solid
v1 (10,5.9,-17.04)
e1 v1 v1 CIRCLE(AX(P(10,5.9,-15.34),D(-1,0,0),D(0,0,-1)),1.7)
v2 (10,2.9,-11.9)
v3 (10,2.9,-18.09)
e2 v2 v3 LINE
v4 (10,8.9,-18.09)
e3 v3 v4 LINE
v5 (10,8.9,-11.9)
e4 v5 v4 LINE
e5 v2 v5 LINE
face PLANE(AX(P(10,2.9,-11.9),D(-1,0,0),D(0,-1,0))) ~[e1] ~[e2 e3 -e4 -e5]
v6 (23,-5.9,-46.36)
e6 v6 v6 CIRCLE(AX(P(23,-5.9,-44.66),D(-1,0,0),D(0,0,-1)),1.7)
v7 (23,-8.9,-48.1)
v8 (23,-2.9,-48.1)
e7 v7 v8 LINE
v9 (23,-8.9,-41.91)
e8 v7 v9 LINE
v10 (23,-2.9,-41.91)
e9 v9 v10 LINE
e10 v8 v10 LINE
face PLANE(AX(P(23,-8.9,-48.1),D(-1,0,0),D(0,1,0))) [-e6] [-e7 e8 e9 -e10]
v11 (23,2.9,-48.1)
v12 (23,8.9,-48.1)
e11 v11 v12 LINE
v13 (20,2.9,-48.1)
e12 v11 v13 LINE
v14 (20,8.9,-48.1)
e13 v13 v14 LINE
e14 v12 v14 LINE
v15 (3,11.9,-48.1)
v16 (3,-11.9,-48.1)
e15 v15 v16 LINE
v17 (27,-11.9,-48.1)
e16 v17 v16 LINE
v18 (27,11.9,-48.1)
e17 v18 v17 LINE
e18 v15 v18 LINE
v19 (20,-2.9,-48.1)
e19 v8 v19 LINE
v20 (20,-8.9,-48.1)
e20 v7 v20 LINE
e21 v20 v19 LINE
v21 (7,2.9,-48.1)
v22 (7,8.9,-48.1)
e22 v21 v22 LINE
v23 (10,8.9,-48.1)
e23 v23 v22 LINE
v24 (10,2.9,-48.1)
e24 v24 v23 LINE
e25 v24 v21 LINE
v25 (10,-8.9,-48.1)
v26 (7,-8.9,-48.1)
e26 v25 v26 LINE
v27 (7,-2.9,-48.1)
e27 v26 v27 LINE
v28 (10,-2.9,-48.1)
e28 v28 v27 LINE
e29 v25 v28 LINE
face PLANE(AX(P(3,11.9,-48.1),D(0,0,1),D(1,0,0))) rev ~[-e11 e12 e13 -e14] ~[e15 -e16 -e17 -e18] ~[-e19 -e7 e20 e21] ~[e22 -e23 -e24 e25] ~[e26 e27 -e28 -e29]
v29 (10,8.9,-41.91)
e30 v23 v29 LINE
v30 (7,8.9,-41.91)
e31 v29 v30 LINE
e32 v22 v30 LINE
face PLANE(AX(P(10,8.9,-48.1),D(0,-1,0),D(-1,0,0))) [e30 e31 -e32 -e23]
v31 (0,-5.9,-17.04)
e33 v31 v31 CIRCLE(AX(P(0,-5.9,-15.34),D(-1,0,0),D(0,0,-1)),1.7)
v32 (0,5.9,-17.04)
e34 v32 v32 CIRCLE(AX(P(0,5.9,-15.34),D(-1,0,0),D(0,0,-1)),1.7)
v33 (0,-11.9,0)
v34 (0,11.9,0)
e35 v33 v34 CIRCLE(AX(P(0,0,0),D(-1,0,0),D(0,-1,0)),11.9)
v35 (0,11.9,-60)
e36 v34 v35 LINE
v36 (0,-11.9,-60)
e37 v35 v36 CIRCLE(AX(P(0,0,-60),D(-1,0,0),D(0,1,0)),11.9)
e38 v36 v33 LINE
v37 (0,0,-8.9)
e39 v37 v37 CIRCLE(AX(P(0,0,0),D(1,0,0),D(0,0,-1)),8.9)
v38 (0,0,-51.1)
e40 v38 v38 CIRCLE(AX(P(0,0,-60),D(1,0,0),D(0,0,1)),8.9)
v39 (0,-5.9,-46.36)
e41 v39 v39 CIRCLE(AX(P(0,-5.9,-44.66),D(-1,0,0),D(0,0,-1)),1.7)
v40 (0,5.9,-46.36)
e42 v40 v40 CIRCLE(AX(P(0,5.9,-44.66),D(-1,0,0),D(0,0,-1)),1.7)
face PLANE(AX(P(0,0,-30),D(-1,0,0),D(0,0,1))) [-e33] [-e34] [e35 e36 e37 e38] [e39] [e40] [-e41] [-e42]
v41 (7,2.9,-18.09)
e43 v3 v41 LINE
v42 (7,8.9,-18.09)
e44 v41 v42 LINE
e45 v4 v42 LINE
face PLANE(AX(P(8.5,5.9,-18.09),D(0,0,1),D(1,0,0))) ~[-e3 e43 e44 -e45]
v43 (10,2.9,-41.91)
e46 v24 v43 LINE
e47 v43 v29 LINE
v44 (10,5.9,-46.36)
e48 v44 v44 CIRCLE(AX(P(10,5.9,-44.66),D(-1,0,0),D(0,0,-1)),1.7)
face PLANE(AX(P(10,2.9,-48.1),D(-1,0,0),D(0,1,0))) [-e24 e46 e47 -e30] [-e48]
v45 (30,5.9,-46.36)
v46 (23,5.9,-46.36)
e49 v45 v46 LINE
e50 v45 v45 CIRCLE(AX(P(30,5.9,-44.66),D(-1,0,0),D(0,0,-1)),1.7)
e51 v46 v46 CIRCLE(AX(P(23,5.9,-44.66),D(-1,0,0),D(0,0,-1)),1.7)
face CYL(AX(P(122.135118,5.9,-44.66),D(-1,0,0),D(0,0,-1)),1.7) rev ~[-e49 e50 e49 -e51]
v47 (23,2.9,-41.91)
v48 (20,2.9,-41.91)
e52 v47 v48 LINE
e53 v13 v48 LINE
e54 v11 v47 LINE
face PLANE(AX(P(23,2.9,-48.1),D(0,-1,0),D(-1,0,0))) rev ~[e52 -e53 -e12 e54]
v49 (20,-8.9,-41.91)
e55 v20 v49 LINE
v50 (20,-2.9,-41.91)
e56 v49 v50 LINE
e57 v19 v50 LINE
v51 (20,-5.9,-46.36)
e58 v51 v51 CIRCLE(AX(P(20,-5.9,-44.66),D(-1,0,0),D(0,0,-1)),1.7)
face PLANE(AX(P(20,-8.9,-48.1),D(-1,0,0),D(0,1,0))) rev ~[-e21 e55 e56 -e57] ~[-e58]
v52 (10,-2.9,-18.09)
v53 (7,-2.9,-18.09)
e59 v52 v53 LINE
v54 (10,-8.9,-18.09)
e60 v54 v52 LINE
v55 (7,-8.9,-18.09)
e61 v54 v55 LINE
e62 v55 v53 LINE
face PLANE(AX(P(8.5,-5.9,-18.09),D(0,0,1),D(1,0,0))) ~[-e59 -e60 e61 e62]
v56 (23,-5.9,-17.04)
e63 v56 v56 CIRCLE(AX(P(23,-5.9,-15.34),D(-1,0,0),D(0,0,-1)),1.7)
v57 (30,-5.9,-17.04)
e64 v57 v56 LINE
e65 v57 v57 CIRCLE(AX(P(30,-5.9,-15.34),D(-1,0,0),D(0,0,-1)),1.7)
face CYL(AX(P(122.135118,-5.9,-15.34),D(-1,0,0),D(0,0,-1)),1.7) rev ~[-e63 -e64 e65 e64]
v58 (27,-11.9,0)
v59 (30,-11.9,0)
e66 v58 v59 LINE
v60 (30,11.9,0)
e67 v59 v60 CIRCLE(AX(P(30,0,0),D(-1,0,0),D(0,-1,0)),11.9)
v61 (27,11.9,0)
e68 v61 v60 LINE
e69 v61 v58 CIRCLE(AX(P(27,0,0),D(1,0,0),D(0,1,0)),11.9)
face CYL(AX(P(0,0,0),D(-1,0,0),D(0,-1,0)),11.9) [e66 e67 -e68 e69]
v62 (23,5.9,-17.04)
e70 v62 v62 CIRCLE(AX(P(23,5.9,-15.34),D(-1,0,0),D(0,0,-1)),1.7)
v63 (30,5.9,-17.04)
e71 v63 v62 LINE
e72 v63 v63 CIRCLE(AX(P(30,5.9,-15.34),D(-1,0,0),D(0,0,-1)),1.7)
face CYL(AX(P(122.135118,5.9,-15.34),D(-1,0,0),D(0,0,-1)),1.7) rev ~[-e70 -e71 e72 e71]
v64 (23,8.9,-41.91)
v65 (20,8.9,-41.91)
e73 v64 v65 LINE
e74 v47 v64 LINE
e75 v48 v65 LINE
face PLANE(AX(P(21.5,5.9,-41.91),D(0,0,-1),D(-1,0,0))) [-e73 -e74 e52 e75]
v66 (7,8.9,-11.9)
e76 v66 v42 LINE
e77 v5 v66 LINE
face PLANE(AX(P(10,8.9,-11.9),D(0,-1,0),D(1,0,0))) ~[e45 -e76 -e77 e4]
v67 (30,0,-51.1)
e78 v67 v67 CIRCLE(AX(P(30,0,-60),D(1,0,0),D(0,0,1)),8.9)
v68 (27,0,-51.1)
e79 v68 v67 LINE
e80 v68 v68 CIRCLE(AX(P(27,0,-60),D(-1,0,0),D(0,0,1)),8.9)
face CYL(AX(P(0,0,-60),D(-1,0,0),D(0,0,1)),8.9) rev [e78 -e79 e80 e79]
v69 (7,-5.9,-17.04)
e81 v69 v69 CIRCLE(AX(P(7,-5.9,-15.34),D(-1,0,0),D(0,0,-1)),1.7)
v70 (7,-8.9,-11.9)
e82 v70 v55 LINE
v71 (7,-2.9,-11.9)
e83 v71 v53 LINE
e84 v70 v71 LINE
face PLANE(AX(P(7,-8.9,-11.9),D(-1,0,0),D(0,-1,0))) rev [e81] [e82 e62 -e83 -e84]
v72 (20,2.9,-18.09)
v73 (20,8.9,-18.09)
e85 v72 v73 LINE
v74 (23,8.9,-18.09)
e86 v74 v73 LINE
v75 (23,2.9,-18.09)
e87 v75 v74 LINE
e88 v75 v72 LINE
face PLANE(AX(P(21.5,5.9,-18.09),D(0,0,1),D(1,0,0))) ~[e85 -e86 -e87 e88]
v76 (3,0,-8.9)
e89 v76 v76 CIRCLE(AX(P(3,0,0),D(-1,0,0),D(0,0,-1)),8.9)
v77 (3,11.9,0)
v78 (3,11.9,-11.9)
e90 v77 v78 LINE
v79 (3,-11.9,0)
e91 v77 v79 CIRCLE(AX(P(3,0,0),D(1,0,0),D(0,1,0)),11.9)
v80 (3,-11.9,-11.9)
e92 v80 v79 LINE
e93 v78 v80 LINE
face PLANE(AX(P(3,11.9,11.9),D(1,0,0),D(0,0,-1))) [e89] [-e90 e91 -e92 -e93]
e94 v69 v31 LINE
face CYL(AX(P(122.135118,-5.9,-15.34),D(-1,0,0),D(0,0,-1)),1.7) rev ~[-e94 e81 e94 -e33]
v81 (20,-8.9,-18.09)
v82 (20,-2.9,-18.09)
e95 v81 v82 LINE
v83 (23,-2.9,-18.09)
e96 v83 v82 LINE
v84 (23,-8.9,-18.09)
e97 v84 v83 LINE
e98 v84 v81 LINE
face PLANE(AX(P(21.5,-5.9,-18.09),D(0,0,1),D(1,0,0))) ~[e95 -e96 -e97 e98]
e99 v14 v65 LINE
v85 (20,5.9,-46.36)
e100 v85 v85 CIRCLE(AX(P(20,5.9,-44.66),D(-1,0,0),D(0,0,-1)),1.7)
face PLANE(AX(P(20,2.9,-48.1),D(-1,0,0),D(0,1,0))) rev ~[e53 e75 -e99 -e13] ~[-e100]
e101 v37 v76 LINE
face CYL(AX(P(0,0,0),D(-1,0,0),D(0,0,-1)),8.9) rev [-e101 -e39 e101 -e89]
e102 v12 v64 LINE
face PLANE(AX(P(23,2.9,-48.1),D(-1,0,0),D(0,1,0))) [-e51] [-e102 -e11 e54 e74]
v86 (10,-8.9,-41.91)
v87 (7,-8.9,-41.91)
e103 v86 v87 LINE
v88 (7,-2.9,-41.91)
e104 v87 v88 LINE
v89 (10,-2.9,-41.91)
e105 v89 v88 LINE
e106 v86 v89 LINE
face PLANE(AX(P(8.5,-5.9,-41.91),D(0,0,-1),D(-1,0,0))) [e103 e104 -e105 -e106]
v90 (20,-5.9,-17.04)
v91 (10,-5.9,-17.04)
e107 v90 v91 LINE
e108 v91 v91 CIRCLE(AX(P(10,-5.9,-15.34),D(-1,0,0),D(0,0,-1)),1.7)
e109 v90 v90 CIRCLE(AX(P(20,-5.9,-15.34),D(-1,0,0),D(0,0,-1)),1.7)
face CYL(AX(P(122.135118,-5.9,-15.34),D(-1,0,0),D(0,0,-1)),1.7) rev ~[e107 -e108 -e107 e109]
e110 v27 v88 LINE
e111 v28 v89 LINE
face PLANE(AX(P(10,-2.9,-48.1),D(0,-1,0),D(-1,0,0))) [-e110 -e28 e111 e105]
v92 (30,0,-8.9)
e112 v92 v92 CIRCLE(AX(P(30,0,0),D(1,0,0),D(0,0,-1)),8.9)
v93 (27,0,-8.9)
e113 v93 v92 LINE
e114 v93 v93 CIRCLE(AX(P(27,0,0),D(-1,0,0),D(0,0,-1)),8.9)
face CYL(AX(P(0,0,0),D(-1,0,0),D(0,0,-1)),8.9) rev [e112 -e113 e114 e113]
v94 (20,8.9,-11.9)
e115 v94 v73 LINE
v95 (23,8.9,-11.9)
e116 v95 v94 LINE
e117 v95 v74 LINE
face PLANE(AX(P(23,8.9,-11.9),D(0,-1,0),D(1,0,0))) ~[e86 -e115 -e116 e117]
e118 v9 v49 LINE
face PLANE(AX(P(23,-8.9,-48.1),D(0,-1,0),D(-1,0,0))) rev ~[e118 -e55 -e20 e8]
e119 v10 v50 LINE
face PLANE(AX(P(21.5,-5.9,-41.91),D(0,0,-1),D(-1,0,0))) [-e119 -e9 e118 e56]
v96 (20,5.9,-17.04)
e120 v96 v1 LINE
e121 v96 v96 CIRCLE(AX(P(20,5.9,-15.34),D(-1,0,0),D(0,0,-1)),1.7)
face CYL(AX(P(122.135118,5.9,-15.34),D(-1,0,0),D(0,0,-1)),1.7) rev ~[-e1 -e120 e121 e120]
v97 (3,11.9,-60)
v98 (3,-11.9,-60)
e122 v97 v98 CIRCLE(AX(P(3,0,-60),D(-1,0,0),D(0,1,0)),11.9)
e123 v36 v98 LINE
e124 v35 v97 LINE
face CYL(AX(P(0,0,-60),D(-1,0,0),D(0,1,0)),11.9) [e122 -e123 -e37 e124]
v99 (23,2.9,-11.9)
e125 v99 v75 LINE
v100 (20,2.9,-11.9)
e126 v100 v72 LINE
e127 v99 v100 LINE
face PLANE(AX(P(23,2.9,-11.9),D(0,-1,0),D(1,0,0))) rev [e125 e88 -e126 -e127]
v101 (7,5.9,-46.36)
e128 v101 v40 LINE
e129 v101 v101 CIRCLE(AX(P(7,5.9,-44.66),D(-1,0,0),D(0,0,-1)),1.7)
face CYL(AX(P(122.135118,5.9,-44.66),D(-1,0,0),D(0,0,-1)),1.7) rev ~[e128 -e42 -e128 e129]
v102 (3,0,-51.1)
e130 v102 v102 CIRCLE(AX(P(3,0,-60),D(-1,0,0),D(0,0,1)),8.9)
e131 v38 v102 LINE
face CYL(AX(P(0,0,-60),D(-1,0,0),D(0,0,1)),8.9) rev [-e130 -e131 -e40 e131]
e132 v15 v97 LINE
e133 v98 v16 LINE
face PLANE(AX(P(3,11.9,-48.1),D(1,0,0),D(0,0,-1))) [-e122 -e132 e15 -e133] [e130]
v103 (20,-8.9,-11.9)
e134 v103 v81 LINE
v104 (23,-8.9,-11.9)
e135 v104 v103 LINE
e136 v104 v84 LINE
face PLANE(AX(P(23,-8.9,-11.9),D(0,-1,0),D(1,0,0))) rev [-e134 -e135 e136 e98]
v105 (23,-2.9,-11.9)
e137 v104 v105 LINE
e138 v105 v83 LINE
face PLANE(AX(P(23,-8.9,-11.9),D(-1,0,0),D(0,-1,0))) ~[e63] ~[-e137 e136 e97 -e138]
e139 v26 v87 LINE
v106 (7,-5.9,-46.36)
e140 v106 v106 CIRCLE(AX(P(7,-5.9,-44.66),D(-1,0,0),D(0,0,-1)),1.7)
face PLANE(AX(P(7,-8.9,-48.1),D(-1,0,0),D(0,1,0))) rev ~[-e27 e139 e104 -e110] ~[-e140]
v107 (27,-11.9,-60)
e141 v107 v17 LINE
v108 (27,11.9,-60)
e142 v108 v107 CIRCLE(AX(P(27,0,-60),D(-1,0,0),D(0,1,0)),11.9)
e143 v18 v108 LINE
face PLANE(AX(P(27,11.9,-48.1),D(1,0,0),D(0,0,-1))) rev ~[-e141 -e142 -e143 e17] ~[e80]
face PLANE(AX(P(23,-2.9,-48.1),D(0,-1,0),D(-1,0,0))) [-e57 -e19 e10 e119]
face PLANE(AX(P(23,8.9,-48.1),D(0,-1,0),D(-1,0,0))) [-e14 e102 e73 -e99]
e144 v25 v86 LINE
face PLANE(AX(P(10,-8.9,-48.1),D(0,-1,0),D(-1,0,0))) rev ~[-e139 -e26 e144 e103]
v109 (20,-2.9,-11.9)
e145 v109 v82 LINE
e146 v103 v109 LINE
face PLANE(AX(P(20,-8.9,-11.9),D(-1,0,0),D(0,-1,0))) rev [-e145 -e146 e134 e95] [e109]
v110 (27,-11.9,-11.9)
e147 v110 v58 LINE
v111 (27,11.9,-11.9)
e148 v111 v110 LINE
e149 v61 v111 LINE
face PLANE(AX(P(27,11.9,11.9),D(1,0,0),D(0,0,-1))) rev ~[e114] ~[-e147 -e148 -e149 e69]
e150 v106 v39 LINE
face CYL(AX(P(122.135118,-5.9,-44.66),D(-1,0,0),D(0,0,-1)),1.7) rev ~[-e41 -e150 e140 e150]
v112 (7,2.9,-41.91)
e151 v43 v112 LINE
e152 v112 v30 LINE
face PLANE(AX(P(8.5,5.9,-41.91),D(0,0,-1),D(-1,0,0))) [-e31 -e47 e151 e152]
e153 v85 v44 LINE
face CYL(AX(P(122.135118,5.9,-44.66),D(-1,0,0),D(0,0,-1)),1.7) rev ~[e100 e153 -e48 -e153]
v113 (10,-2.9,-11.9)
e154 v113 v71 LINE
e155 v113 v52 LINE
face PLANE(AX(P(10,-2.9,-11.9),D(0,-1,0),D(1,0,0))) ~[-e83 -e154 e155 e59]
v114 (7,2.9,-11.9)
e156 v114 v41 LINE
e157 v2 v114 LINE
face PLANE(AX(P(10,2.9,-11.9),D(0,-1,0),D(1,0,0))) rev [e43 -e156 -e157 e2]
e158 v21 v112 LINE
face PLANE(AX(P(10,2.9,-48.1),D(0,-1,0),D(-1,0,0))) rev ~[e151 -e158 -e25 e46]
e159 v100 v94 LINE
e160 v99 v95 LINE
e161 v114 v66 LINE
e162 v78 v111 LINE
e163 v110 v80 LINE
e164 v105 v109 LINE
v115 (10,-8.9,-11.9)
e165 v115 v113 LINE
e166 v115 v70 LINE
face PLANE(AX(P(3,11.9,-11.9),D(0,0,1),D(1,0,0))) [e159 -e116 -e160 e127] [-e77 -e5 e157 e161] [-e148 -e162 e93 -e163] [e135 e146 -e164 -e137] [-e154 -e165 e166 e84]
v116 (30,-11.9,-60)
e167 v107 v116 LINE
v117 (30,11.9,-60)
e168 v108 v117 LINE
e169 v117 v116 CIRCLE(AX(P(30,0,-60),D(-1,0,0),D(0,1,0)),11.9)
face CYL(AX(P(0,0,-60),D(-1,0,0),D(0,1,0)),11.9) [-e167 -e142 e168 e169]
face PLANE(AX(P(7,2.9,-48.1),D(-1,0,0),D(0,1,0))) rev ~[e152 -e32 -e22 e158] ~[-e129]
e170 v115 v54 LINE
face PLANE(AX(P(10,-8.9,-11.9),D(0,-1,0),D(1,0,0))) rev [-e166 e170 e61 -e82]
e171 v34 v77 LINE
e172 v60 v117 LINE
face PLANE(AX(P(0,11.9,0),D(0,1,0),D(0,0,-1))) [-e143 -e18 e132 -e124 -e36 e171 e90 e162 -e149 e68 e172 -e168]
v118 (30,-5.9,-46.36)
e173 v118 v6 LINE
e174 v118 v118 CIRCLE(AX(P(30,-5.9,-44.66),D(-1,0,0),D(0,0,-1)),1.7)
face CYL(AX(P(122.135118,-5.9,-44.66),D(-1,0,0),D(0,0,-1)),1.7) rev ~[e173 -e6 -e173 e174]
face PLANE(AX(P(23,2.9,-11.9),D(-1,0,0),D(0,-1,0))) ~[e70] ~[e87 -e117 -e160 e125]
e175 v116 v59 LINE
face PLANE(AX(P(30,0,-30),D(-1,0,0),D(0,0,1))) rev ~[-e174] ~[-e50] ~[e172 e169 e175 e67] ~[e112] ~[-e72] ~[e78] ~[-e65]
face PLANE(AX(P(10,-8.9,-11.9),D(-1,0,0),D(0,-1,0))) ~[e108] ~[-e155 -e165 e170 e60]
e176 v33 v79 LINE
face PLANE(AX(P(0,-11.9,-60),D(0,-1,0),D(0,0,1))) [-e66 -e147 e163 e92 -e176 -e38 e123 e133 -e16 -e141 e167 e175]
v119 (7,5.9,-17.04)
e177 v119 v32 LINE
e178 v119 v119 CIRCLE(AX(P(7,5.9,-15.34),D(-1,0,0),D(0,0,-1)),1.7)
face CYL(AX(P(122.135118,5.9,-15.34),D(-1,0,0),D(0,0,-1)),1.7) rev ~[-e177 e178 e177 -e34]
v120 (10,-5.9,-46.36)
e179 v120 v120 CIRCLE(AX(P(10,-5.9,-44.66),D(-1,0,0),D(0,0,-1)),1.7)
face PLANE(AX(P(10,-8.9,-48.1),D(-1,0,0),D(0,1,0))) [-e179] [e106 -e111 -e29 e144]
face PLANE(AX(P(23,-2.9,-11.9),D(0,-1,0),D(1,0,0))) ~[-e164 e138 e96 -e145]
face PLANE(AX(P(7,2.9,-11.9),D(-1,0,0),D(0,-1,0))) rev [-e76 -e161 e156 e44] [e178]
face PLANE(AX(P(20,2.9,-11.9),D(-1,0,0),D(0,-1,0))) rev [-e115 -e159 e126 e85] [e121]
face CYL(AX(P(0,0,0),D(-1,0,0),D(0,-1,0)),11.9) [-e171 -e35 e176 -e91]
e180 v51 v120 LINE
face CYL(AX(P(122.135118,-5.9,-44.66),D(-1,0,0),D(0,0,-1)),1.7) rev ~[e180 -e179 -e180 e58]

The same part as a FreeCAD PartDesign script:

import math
import FreeCAD as App
import Part
import Sketcher
Q = App.Units.Quantity


def add_polygon(sketch, points):
    """Adds a closed chain of lines whose ends are joined by coincident constraints."""
    first, n = sketch.GeometryCount, len(points)
    for a, b in zip(points, points[1:] + points[:1]):
        sketch.addGeometry(Part.LineSegment(App.Vector(*a, 0), App.Vector(*b, 0)), False)
    for i in range(n):
        sketch.addConstraint(Sketcher.Constraint("Coincident", first + i, 2, first + (i + 1) % n, 1))

doc = App.newDocument("Part")
body = doc.addObject("PartDesign::Body", "Body")

sketch1 = doc.addObject("Sketcher::SketchObject", "Sketch")
body.addObject(sketch1)
sketch1.AttachmentSupport = (doc.YZ_Plane, [""])
sketch1.MapMode = "FlatFace"
sketch1.addGeometry([
    Part.LineSegment(App.Vector(11.9, -60, 0), App.Vector(11.9, 0, 0)),
    Part.ArcOfCircle(Part.Circle(App.Vector(0, 0, 0), App.Vector(0, 0, 1), 11.9), math.radians(0), math.radians(180)),
    Part.LineSegment(App.Vector(-11.9, 0, 0), App.Vector(-11.9, -60, 0)),
    Part.ArcOfCircle(Part.Circle(App.Vector(0, -60, 0), App.Vector(0, 0, 1), 11.9), math.radians(180), math.radians(360)),
    Part.Circle(App.Vector(0, -60, 0), App.Vector(0, 0, 1), 8.9),
    Part.Circle(App.Vector(0, 0, 0), App.Vector(0, 0, 1), 8.9),
], False)
sketch1.addConstraint([
    Sketcher.Constraint("Tangent", 0, 2, 1, 1),
    Sketcher.Constraint("Tangent", 1, 2, 2, 1),
    Sketcher.Constraint("Tangent", 2, 2, 3, 1),
    Sketcher.Constraint("Tangent", 3, 2, 0, 1),
    Sketcher.Constraint("Vertical", 0),
    Sketcher.Constraint("Vertical", 2),
    Sketcher.Constraint("Coincident", 1, 3, -1, 1),
    Sketcher.Constraint("Coincident", 5, 3, -1, 1),
    Sketcher.Constraint("Coincident", 4, 3, 3, 3),
    Sketcher.Constraint("Equal", 4, 5),
    Sketcher.Constraint("Diameter", 4, Q("17.8 mm")),
    Sketcher.Constraint("Radius", 1, Q("11.9 mm")),
    Sketcher.Constraint("DistanceY", 0, 1, 0, 2, Q("60 mm")),
])
pad1 = doc.addObject("PartDesign::Pad", "Pad")
body.addObject(pad1)
pad1.Profile = sketch1
pad1.Length = 30

sketch2 = doc.addObject("Sketcher::SketchObject", "Sketch001")
body.addObject(sketch2)
sketch2.AttachmentSupport = (doc.XZ_Plane, [""])
sketch2.MapMode = "FlatFace"
sketch2.AttachmentOffset = App.Placement(App.Vector(0, 0, -11.9), App.Rotation())
add_polygon(sketch2, [(3, -11.9), (3, 11.9), (27, 11.9), (27, -11.9)])
add_polygon(sketch2, [(3, -71.9), (3, -48.1), (27, -48.1), (27, -71.9)])
sketch2.addConstraint([
    Sketcher.Constraint("Vertical", 0),
    Sketcher.Constraint("Horizontal", 1),
    Sketcher.Constraint("Vertical", 2),
    Sketcher.Constraint("Horizontal", 3),
    Sketcher.Constraint("Vertical", 4),
    Sketcher.Constraint("Horizontal", 5),
    Sketcher.Constraint("Vertical", 6),
    Sketcher.Constraint("Horizontal", 7),
    Sketcher.Constraint("Vertical", 3, 2, 4, 2),
    Sketcher.Constraint("Vertical", 2, 2, 5, 2),
    Sketcher.Constraint("Equal", 2, 4),
    Sketcher.Constraint("DistanceX", 1, 1, 1, 2, Q("24 mm")),
    Sketcher.Constraint("DistanceY", 0, 1, 0, 2, Q("23.8 mm")),
    Sketcher.Constraint("DistanceX", -1, 1, 0, 2, Q("3 mm")),
    Sketcher.Constraint("DistanceY", 4, 2, 0, 2, Q("60 mm")),
    Sketcher.Constraint("DistanceY", -1, 1, 0, 2, Q("11.9 mm")),
])
pocket1 = doc.addObject("PartDesign::Pocket", "Pocket")
body.addObject(pocket1)
pocket1.Profile = sketch2
pocket1.Type = "ThroughAll"
pocket1.Reversed = True

sketch3 = doc.addObject("Sketcher::SketchObject", "Sketch002")
body.addObject(sketch3)
sketch3.AttachmentSupport = (doc.YZ_Plane, [""])
sketch3.MapMode = "FlatFace"
sketch3.AttachmentOffset = App.Placement(App.Vector(0, 0, 30), App.Rotation())
sketch3.addGeometry([
    Part.Circle(App.Vector(-5.9, -15.34, 0), App.Vector(0, 0, 1), 1.7),
    Part.Circle(App.Vector(5.9, -15.34, 0), App.Vector(0, 0, 1), 1.7),
    Part.Circle(App.Vector(5.9, -44.66, 0), App.Vector(0, 0, 1), 1.7),
    Part.Circle(App.Vector(-5.9, -44.66, 0), App.Vector(0, 0, 1), 1.7),
], False)
sketch3.addConstraint([
    Sketcher.Constraint("Equal", 0, 1),
    Sketcher.Constraint("Equal", 1, 2),
    Sketcher.Constraint("Equal", 2, 3),
    Sketcher.Constraint("Symmetric", 0, 3, 1, 3, -2),
    Sketcher.Constraint("Symmetric", 2, 3, 3, 3, -2),
    Sketcher.Constraint("Vertical", 1, 3, 2, 3),
    Sketcher.Constraint("Diameter", 0, Q("3.4 mm")),
    Sketcher.Constraint("DistanceX", 0, 3, -1, 1, Q("5.9 mm")),
    Sketcher.Constraint("DistanceY", 0, 3, -1, 1, Q("15.34 mm")),
    Sketcher.Constraint("DistanceY", 2, 3, -1, 1, Q("44.66 mm")),
])
doc.recompute()
hole = doc.addObject("PartDesign::Hole", "Hole")
body.addObject(hole)
hole.Profile = sketch3
hole.ThreadType = "None"
hole.Diameter = 3.4
hole.DepthType = "ThroughAll"

sketch4 = doc.addObject("Sketcher::SketchObject", "Sketch003")
body.addObject(sketch4)
sketch4.AttachmentSupport = (doc.XY_Plane, [""])
sketch4.MapMode = "FlatFace"
sketch4.AttachmentOffset = App.Placement(App.Vector(0, 0, -48.1), App.Rotation())
add_polygon(sketch4, [(23, -2.9), (23, -8.9), (20, -8.9), (20, -2.9)])
add_polygon(sketch4, [(23, 8.9), (23, 2.9), (20, 2.9), (20, 8.9)])
add_polygon(sketch4, [(10, -2.9), (10, -8.9), (7, -8.9), (7, -2.9)])
add_polygon(sketch4, [(10, 8.9), (10, 2.9), (7, 2.9), (7, 8.9)])
sketch4.addConstraint([
    Sketcher.Constraint("Vertical", 0),
    Sketcher.Constraint("Horizontal", 1),
    Sketcher.Constraint("Vertical", 2),
    Sketcher.Constraint("Horizontal", 3),
    Sketcher.Constraint("Vertical", 4),
    Sketcher.Constraint("Horizontal", 5),
    Sketcher.Constraint("Vertical", 6),
    Sketcher.Constraint("Horizontal", 7),
    Sketcher.Constraint("Vertical", 8),
    Sketcher.Constraint("Horizontal", 9),
    Sketcher.Constraint("Vertical", 10),
    Sketcher.Constraint("Horizontal", 11),
    Sketcher.Constraint("Vertical", 12),
    Sketcher.Constraint("Horizontal", 13),
    Sketcher.Constraint("Vertical", 14),
    Sketcher.Constraint("Horizontal", 15),
    Sketcher.Constraint("Symmetric", 3, 2, 4, 2, -1),
    Sketcher.Constraint("Symmetric", 1, 2, 6, 2, -1),
    Sketcher.Constraint("Symmetric", 11, 2, 12, 2, -1),
    Sketcher.Constraint("Symmetric", 9, 2, 14, 2, -1),
    Sketcher.Constraint("Horizontal", 1, 2, 8, 2),
    Sketcher.Constraint("Horizontal", 3, 2, 10, 2),
    Sketcher.Constraint("Equal", 7, 9),
    Sketcher.Constraint("DistanceX", 1, 2, 1, 1, Q("3 mm")),
    Sketcher.Constraint("DistanceY", 0, 2, 0, 1, Q("6 mm")),
    Sketcher.Constraint("DistanceX", -1, 1, 0, 2, Q("23 mm")),
    Sketcher.Constraint("DistanceX", -1, 1, 8, 2, Q("10 mm")),
    Sketcher.Constraint("DistanceY", 0, 2, -1, 1, Q("8.9 mm")),
])
pocket2 = doc.addObject("PartDesign::Pocket", "Pocket001")
body.addObject(pocket2)
pocket2.Profile = sketch4
pocket2.Length = 6.19
pocket2.Reversed = True
doc.recompute()

datumplane = doc.addObject("PartDesign::Plane", "DatumPlane")
body.addObject(datumplane)
datumplane.AttachmentSupport = (doc.XY_Plane, [""])
datumplane.MapMode = "FlatFace"
datumplane.AttachmentOffset = App.Placement(App.Vector(0, 0, -30), App.Rotation())
mirrored = doc.addObject("PartDesign::Mirrored", "Mirrored")
body.addObject(mirrored)
mirrored.Originals = [pocket2]
mirrored.MirrorPlane = (datumplane, [""])
body.Tip = mirrored

doc.recompute()
